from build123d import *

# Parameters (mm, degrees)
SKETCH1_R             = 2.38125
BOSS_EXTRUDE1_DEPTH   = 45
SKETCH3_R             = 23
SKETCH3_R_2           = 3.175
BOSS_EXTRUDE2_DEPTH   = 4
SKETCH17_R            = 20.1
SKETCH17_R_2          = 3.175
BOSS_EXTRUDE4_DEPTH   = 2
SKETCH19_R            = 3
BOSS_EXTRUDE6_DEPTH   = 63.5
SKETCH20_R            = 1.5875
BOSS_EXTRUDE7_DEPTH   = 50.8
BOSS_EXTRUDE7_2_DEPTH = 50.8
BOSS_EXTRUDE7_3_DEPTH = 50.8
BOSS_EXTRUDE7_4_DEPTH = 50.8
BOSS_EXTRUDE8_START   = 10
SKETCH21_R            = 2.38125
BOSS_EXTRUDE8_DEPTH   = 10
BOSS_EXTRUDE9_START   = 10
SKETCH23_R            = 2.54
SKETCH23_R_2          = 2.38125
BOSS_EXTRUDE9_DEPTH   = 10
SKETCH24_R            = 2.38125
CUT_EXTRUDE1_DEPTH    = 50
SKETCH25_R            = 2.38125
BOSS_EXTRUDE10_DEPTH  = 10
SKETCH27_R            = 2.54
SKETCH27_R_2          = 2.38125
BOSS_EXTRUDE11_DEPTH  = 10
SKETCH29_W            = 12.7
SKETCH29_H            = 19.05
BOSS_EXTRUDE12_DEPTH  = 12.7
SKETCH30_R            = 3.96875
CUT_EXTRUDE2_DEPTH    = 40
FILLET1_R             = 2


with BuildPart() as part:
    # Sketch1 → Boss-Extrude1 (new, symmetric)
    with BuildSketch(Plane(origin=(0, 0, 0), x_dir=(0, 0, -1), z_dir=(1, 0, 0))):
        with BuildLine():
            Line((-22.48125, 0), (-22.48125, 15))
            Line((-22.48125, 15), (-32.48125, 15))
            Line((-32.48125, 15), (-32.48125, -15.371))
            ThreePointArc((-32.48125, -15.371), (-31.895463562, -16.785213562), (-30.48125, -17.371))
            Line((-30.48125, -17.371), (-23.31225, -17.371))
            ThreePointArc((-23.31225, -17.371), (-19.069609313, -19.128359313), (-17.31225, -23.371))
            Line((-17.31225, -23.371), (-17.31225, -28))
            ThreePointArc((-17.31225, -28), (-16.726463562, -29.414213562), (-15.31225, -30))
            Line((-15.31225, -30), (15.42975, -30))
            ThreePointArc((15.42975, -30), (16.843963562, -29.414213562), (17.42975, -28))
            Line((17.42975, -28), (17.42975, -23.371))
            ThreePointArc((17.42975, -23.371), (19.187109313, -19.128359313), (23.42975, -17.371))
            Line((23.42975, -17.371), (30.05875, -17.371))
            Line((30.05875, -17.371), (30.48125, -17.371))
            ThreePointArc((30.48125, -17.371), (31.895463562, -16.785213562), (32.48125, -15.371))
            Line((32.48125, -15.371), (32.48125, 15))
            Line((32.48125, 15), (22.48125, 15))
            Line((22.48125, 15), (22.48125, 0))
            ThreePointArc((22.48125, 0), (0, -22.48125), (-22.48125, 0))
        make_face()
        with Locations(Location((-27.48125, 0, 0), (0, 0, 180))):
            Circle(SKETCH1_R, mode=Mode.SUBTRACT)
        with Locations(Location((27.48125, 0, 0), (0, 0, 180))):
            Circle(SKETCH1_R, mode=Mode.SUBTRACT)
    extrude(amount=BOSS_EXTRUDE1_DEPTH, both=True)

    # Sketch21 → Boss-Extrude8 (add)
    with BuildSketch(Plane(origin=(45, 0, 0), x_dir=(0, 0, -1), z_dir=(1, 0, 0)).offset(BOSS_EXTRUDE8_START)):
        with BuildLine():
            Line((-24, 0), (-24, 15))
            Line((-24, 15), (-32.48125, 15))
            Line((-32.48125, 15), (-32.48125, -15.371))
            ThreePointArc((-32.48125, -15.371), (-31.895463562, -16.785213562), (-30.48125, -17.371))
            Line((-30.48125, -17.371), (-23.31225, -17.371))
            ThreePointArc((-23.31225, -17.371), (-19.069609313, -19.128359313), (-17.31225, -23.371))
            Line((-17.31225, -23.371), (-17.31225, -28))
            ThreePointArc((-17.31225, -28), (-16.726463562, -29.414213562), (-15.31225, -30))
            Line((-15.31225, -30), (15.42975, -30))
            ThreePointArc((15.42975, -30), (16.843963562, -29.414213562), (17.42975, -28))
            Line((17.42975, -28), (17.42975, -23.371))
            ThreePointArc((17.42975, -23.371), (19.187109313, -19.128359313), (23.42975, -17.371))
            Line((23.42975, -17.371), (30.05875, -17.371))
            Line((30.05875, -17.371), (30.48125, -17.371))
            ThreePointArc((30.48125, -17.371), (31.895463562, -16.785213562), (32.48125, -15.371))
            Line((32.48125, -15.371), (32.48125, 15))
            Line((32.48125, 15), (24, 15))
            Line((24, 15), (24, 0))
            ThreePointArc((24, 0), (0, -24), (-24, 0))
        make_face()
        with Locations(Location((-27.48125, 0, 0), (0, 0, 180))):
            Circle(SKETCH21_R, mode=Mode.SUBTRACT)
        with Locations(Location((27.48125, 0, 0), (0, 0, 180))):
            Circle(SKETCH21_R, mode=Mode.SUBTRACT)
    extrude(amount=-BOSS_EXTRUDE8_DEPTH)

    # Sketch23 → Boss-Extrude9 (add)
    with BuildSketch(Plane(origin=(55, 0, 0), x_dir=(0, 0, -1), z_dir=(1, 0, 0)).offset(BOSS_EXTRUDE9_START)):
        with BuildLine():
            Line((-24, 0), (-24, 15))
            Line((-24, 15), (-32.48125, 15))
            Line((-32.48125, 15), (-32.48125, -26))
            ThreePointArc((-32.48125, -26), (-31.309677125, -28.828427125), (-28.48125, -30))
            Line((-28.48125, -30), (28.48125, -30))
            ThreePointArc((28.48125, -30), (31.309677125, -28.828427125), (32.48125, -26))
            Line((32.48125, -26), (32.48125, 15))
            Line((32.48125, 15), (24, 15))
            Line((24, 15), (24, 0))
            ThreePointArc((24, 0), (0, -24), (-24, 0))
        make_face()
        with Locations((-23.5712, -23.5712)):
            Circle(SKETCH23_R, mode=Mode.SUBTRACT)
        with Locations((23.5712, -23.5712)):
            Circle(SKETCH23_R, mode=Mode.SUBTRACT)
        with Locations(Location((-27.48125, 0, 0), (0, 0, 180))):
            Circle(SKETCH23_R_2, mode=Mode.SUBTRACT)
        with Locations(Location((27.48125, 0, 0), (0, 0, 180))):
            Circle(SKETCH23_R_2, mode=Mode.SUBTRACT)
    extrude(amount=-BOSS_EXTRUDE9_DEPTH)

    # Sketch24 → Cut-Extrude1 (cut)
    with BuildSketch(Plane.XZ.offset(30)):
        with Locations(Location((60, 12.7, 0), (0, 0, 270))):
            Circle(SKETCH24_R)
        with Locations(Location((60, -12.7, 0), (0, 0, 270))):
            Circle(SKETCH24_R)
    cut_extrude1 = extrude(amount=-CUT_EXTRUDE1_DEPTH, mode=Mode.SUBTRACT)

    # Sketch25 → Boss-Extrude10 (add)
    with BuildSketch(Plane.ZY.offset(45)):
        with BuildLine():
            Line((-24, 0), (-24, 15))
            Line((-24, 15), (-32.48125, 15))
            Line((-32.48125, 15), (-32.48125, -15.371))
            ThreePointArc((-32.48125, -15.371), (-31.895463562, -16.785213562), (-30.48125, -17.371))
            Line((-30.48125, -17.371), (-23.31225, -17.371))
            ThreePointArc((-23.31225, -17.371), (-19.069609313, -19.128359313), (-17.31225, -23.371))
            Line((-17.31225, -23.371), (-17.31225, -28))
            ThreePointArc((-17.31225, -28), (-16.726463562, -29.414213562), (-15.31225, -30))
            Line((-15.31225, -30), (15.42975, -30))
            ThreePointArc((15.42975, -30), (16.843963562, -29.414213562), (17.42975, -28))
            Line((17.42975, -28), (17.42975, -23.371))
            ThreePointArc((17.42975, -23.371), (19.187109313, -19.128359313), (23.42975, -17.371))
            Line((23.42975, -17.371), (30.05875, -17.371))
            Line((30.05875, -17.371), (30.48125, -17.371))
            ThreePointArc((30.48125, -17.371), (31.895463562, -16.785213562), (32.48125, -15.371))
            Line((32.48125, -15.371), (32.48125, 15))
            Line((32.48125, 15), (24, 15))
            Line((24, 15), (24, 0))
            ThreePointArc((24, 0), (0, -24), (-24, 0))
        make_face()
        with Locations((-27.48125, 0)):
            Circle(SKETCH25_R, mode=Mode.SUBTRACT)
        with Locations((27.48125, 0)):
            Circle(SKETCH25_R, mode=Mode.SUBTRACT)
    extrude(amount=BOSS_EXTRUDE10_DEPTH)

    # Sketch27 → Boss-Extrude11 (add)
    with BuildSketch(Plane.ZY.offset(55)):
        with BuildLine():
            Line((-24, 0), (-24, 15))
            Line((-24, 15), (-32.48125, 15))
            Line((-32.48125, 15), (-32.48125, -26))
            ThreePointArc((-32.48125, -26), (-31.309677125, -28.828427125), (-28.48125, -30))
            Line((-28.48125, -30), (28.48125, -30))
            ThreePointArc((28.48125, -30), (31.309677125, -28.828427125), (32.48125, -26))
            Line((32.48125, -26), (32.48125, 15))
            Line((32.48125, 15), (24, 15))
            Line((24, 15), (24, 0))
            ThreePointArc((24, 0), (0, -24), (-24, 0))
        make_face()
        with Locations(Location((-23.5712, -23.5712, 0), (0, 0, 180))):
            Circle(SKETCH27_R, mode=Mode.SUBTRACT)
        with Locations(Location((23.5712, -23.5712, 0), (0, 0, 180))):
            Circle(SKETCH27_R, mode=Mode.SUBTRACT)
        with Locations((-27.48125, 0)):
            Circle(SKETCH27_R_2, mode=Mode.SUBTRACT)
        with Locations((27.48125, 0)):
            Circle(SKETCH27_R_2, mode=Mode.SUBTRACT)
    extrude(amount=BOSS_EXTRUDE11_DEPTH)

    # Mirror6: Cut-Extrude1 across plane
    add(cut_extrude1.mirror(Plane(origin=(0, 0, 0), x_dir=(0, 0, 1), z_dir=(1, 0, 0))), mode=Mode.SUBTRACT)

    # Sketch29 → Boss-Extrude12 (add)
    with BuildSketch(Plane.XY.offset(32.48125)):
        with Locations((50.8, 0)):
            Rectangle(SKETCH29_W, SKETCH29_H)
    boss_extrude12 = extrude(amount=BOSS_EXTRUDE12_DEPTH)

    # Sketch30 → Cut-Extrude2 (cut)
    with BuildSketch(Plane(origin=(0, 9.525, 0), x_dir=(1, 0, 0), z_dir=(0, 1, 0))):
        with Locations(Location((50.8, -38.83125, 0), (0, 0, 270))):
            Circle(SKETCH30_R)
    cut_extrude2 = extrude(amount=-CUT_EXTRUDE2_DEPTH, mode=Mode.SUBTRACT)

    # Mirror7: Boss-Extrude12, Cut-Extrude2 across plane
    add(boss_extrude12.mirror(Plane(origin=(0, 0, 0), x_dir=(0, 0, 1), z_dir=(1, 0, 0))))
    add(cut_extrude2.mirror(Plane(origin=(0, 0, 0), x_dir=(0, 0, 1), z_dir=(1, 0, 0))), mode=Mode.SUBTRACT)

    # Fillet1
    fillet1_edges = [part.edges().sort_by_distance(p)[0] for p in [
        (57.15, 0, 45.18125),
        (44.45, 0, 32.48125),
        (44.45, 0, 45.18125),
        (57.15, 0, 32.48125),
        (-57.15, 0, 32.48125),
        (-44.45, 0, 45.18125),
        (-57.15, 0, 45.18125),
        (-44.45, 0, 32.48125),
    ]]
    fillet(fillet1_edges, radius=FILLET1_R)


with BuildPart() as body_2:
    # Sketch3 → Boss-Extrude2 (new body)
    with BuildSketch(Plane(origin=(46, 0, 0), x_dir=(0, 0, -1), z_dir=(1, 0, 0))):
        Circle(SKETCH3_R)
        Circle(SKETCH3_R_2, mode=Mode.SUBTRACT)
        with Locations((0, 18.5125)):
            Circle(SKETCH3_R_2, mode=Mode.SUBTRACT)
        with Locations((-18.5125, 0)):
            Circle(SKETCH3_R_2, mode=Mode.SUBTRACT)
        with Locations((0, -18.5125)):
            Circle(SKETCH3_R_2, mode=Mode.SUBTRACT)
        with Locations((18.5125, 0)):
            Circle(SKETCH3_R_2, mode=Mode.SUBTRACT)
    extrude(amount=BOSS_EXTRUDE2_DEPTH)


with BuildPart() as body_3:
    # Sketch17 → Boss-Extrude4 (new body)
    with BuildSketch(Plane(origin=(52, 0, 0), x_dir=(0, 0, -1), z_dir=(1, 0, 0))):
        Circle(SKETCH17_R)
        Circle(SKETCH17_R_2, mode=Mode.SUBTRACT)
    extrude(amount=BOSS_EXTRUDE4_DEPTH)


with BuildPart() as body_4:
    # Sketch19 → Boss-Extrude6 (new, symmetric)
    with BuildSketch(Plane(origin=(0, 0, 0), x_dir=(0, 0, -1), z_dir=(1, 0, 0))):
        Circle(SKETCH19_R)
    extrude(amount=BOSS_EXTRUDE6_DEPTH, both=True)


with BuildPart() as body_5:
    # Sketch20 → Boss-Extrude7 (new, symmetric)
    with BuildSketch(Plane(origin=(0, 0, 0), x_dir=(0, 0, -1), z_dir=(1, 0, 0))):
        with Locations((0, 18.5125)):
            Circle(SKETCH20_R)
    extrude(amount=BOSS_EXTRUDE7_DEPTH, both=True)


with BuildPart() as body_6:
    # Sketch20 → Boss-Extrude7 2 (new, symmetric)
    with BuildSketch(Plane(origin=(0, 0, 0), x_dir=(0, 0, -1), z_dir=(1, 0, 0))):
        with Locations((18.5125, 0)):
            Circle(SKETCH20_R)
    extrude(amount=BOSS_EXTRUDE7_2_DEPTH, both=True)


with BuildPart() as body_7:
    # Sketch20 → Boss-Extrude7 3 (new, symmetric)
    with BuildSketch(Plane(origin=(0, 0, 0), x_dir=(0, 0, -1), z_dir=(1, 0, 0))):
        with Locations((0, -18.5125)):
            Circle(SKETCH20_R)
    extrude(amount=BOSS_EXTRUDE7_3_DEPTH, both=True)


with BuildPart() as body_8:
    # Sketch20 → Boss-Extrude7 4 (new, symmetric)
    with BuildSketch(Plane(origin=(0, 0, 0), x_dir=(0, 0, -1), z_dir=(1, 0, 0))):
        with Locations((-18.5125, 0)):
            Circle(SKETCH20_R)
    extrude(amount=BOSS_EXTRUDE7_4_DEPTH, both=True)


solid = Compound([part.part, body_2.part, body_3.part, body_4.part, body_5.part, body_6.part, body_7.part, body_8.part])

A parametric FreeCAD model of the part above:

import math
import FreeCAD as App
import Part
import Sketcher


def edges_at(feature, points):
    """Names of the edges that pass closest to the given points."""
    edges = feature.Shape.Edges
    near = lambda p: min(range(len(edges)), key=lambda i: edges[i].distToShape(Part.Vertex(*p))[0])
    return sorted({f"Edge{near(p) + 1}" for p in points})


def add_polygon(sketch, points):
    """Adds a closed chain of lines whose ends are joined by coincident constraints."""
    first, n = sketch.GeometryCount, len(points)
    for a, b in zip(points, points[1:] + points[:1]):
        sketch.addGeometry(Part.LineSegment(App.Vector(*a, 0), App.Vector(*b, 0)), False)
    for i in range(n):
        sketch.addConstraint(Sketcher.Constraint("Coincident", first + i, 2, first + (i + 1) % n, 1))

doc = App.newDocument("Part")
body = doc.addObject("PartDesign::Body", "Body")

# Sketch on YZ plane
sketch1 = doc.addObject("Sketcher::SketchObject", "Sketch")
body.addObject(sketch1)
sketch1.AttachmentSupport = (doc.YZ_Plane, [""])
sketch1.MapMode = "FlatFace"
sketch1.addGeometry(Part.LineSegment(App.Vector(0, 22.48125, 0), App.Vector(15, 22.48125, 0)), False)
sketch1.addGeometry(Part.LineSegment(App.Vector(15, 22.48125, 0), App.Vector(15, 32.48125, 0)), False)
sketch1.addGeometry(Part.LineSegment(App.Vector(15, 32.48125, 0), App.Vector(-15.371, 32.48125, 0)), False)
sketch1.addGeometry(Part.ArcOfCircle(Part.Circle(App.Vector(-15.371, 30.48125, 0), App.Vector(0, 0, 1), 2), math.radians(90), math.radians(180)), False)
sketch1.addGeometry(Part.LineSegment(App.Vector(-17.371, 30.48125, 0), App.Vector(-17.371, 23.31225, 0)), False)
sketch1.addGeometry(Part.ArcOfCircle(Part.Circle(App.Vector(-23.371, 23.31225, 0), App.Vector(0, 0, 1), 6), math.radians(-90), math.radians(0)), False)
sketch1.addGeometry(Part.LineSegment(App.Vector(-23.371, 17.31225, 0), App.Vector(-28, 17.31225, 0)), False)
sketch1.addGeometry(Part.ArcOfCircle(Part.Circle(App.Vector(-28, 15.31225, 0), App.Vector(0, 0, 1), 2), math.radians(90), math.radians(180)), False)
sketch1.addGeometry(Part.LineSegment(App.Vector(-30, 15.31225, 0), App.Vector(-30, -15.42975, 0)), False)
sketch1.addGeometry(Part.ArcOfCircle(Part.Circle(App.Vector(-28, -15.42975, 0), App.Vector(0, 0, 1), 2), math.radians(-180), math.radians(-90)), False)
sketch1.addGeometry(Part.LineSegment(App.Vector(-28, -17.42975, 0), App.Vector(-23.371, -17.42975, 0)), False)
sketch1.addGeometry(Part.ArcOfCircle(Part.Circle(App.Vector(-23.371, -23.42975, 0), App.Vector(0, 0, 1), 6), math.radians(0), math.radians(90)), False)
sketch1.addGeometry(Part.LineSegment(App.Vector(-17.371, -23.42975, 0), App.Vector(-17.371, -30.48125, 0)), False)
sketch1.addGeometry(Part.ArcOfCircle(Part.Circle(App.Vector(-15.371, -30.48125, 0), App.Vector(0, 0, 1), 2), math.radians(-180), math.radians(-90)), False)
sketch1.addGeometry(Part.LineSegment(App.Vector(-15.371, -32.48125, 0), App.Vector(15, -32.48125, 0)), False)
sketch1.addGeometry(Part.LineSegment(App.Vector(15, -32.48125, 0), App.Vector(15, -22.48125, 0)), False)
sketch1.addGeometry(Part.LineSegment(App.Vector(15, -22.48125, 0), App.Vector(0, -22.48125, 0)), False)
sketch1.addGeometry(Part.ArcOfCircle(Part.Circle(App.Vector(0, 0, 0), App.Vector(0, 0, 1), 22.48125), math.radians(90), math.radians(270)), False)
sketch1.addGeometry(Part.Circle(App.Vector(0, 27.48125, 0), App.Vector(0, 0, 1), 2.38125), False)
sketch1.addGeometry(Part.Circle(App.Vector(0, -27.48125, 0), App.Vector(0, 0, 1), 2.38125), False)
sketch1.addConstraint(Sketcher.Constraint("Coincident", 0, 2, 1, 1))
sketch1.addConstraint(Sketcher.Constraint("Coincident", 1, 2, 2, 1))
sketch1.addConstraint(Sketcher.Constraint("Tangent", 2, 2, 3, 1))
sketch1.addConstraint(Sketcher.Constraint("Tangent", 3, 2, 4, 1))
sketch1.addConstraint(Sketcher.Constraint("Tangent", 4, 2, 5, 2))
sketch1.addConstraint(Sketcher.Constraint("Tangent", 5, 1, 6, 1))
sketch1.addConstraint(Sketcher.Constraint("Tangent", 6, 2, 7, 1))
sketch1.addConstraint(Sketcher.Constraint("Tangent", 7, 2, 8, 1))
sketch1.addConstraint(Sketcher.Constraint("Tangent", 8, 2, 9, 1))
sketch1.addConstraint(Sketcher.Constraint("Tangent", 9, 2, 10, 1))
sketch1.addConstraint(Sketcher.Constraint("Tangent", 10, 2, 11, 2))
sketch1.addConstraint(Sketcher.Constraint("Tangent", 11, 1, 12, 1))
sketch1.addConstraint(Sketcher.Constraint("Tangent", 12, 2, 13, 1))
sketch1.addConstraint(Sketcher.Constraint("Tangent", 13, 2, 14, 1))
sketch1.addConstraint(Sketcher.Constraint("Coincident", 14, 2, 15, 1))
sketch1.addConstraint(Sketcher.Constraint("Coincident", 15, 2, 16, 1))
sketch1.addConstraint(Sketcher.Constraint("Tangent", 16, 2, 17, 2))
sketch1.addConstraint(Sketcher.Constraint("Tangent", 17, 1, 0, 1))
sketch1.addConstraint(Sketcher.Constraint("Horizontal", 0))
sketch1.addConstraint(Sketcher.Constraint("Vertical", 1))
sketch1.addConstraint(Sketcher.Constraint("Horizontal", 2))
sketch1.addConstraint(Sketcher.Constraint("Vertical", 4))
sketch1.addConstraint(Sketcher.Constraint("Horizontal", 6))
sketch1.addConstraint(Sketcher.Constraint("Vertical", 8))
sketch1.addConstraint(Sketcher.Constraint("Horizontal", 10))
sketch1.addConstraint(Sketcher.Constraint("Vertical", 12))
sketch1.addConstraint(Sketcher.Constraint("Horizontal", 14))
sketch1.addConstraint(Sketcher.Constraint("Vertical", 15))
sketch1.addConstraint(Sketcher.Constraint("Horizontal", 16))
sketch1.addConstraint(Sketcher.Constraint("Coincident", 17, 3, -1, 1))
sketch1.addConstraint(Sketcher.Constraint("Equal", 3, 7))
sketch1.addConstraint(Sketcher.Constraint("Equal", 7, 9))
sketch1.addConstraint(Sketcher.Constraint("Equal", 5, 11))
sketch1.addConstraint(Sketcher.Constraint("Equal", 9, 13))
sketch1.addConstraint(Sketcher.Constraint("Equal", 18, 19))
sketch1.addConstraint(Sketcher.Constraint("Symmetric", 18, 3, 19, 3, -1, 1))
sketch1.addConstraint(Sketcher.Constraint("Symmetric", 3, 3, 13, 3, -1))
sketch1.addConstraint(Sketcher.Constraint("PointOnObject", 18, 3, -2))
sketch1.addConstraint(Sketcher.Constraint("Vertical", 1, 2, 14, 2))
sketch1.addConstraint(Sketcher.Constraint("Radius", 3, 2.0))
sketch1.addConstraint(Sketcher.Constraint("Radius", 5, 6.0))
sketch1.addConstraint(Sketcher.Constraint("DistanceX", 0, 1, 0, 2, 15.0))
sketch1.addConstraint(Sketcher.Constraint("DistanceY", 1, 1, 1, 2, 10.0))
sketch1.addConstraint(Sketcher.Constraint("DistanceX", 7, 3, -1, 1, 28.0))
sketch1.addConstraint(Sketcher.Constraint("DistanceY", 18, 3, 3, 3, 3.0))
sketch1.addConstraint(Sketcher.Constraint("Diameter", 18, 4.7625))
sketch1.addConstraint(Sketcher.Constraint("DistanceX", 2, 2, 2, 1, 30.371))
sketch1.addConstraint(Sketcher.Constraint("DistanceY", 4, 2, 4, 1, 7.169))
sketch1.addConstraint(Sketcher.Constraint("DistanceY", 8, 2, 8, 1, 30.742))
sketch1.addConstraint(Sketcher.Constraint("Radius", 17, 22.48125))
pad1 = doc.addObject("PartDesign::Pad", "Pad")
body.addObject(pad1)
pad1.Profile = sketch1
pad1.Length = 90
pad1.Midplane = True

# Sketch on YZ plane
sketch2 = doc.addObject("Sketcher::SketchObject", "Sketch001")
body.addObject(sketch2)
sketch2.AttachmentSupport = (doc.YZ_Plane, [""])
sketch2.MapMode = "FlatFace"
sketch2.AttachmentOffset = App.Placement(App.Vector(0, 0, 55), App.Rotation())
sketch2.addGeometry(Part.LineSegment(App.Vector(0, 24, 0), App.Vector(15, 24, 0)), False)
sketch2.addGeometry(Part.LineSegment(App.Vector(15, 24, 0), App.Vector(15, 32.48125, 0)), False)
sketch2.addGeometry(Part.LineSegment(App.Vector(15, 32.48125, 0), App.Vector(-15.371, 32.48125, 0)), False)
sketch2.addGeometry(Part.ArcOfCircle(Part.Circle(App.Vector(-15.371, 30.48125, 0), App.Vector(0, 0, 1), 2), math.radians(90), math.radians(180)), False)
sketch2.addGeometry(Part.LineSegment(App.Vector(-17.371, 30.48125, 0), App.Vector(-17.371, 23.31225, 0)), False)
sketch2.addGeometry(Part.ArcOfCircle(Part.Circle(App.Vector(-23.371, 23.31225, 0), App.Vector(0, 0, 1), 6), math.radians(-90), math.radians(0)), False)
sketch2.addGeometry(Part.LineSegment(App.Vector(-23.371, 17.31225, 0), App.Vector(-28, 17.31225, 0)), False)
sketch2.addGeometry(Part.ArcOfCircle(Part.Circle(App.Vector(-28, 15.31225, 0), App.Vector(0, 0, 1), 2), math.radians(90), math.radians(180)), False)
sketch2.addGeometry(Part.LineSegment(App.Vector(-30, 15.31225, 0), App.Vector(-30, -15.42975, 0)), False)
sketch2.addGeometry(Part.ArcOfCircle(Part.Circle(App.Vector(-28, -15.42975, 0), App.Vector(0, 0, 1), 2), math.radians(-180), math.radians(-90)), False)
sketch2.addGeometry(Part.LineSegment(App.Vector(-28, -17.42975, 0), App.Vector(-23.371, -17.42975, 0)), False)
sketch2.addGeometry(Part.ArcOfCircle(Part.Circle(App.Vector(-23.371, -23.42975, 0), App.Vector(0, 0, 1), 6), math.radians(0), math.radians(90)), False)
sketch2.addGeometry(Part.LineSegment(App.Vector(-17.371, -23.42975, 0), App.Vector(-17.371, -30.48125, 0)), False)
sketch2.addGeometry(Part.ArcOfCircle(Part.Circle(App.Vector(-15.371, -30.48125, 0), App.Vector(0, 0, 1), 2), math.radians(-180), math.radians(-90)), False)
sketch2.addGeometry(Part.LineSegment(App.Vector(-15.371, -32.48125, 0), App.Vector(15, -32.48125, 0)), False)
sketch2.addGeometry(Part.LineSegment(App.Vector(15, -32.48125, 0), App.Vector(15, -24, 0)), False)
sketch2.addGeometry(Part.LineSegment(App.Vector(15, -24, 0), App.Vector(0, -24, 0)), False)
sketch2.addGeometry(Part.ArcOfCircle(Part.Circle(App.Vector(0, 0, 0), App.Vector(0, 0, 1), 24), math.radians(90), math.radians(270)), False)
sketch2.addGeometry(Part.Circle(App.Vector(0, 27.48125, 0), App.Vector(0, 0, 1), 2.38125), False)
sketch2.addGeometry(Part.Circle(App.Vector(0, -27.48125, 0), App.Vector(0, 0, 1), 2.38125), False)
sketch2.addConstraint(Sketcher.Constraint("Coincident", 0, 2, 1, 1))
sketch2.addConstraint(Sketcher.Constraint("Coincident", 1, 2, 2, 1))
sketch2.addConstraint(Sketcher.Constraint("Tangent", 2, 2, 3, 1))
sketch2.addConstraint(Sketcher.Constraint("Tangent", 3, 2, 4, 1))
sketch2.addConstraint(Sketcher.Constraint("Tangent", 4, 2, 5, 2))
sketch2.addConstraint(Sketcher.Constraint("Tangent", 5, 1, 6, 1))
sketch2.addConstraint(Sketcher.Constraint("Tangent", 6, 2, 7, 1))
sketch2.addConstraint(Sketcher.Constraint("Tangent", 7, 2, 8, 1))
sketch2.addConstraint(Sketcher.Constraint("Tangent", 8, 2, 9, 1))
sketch2.addConstraint(Sketcher.Constraint("Tangent", 9, 2, 10, 1))
sketch2.addConstraint(Sketcher.Constraint("Tangent", 10, 2, 11, 2))
sketch2.addConstraint(Sketcher.Constraint("Tangent", 11, 1, 12, 1))
sketch2.addConstraint(Sketcher.Constraint("Tangent", 12, 2, 13, 1))
sketch2.addConstraint(Sketcher.Constraint("Tangent", 13, 2, 14, 1))
sketch2.addConstraint(Sketcher.Constraint("Coincident", 14, 2, 15, 1))
sketch2.addConstraint(Sketcher.Constraint("Coincident", 15, 2, 16, 1))
sketch2.addConstraint(Sketcher.Constraint("Tangent", 16, 2, 17, 2))
sketch2.addConstraint(Sketcher.Constraint("Tangent", 17, 1, 0, 1))
sketch2.addConstraint(Sketcher.Constraint("Horizontal", 0))
sketch2.addConstraint(Sketcher.Constraint("Vertical", 1))
sketch2.addConstraint(Sketcher.Constraint("Horizontal", 2))
sketch2.addConstraint(Sketcher.Constraint("Vertical", 4))
sketch2.addConstraint(Sketcher.Constraint("Horizontal", 6))
sketch2.addConstraint(Sketcher.Constraint("Vertical", 8))
sketch2.addConstraint(Sketcher.Constraint("Horizontal", 10))
sketch2.addConstraint(Sketcher.Constraint("Vertical", 12))
sketch2.addConstraint(Sketcher.Constraint("Horizontal", 14))
sketch2.addConstraint(Sketcher.Constraint("Vertical", 15))
sketch2.addConstraint(Sketcher.Constraint("Horizontal", 16))
sketch2.addConstraint(Sketcher.Constraint("Coincident", 17, 3, -1, 1))
sketch2.addConstraint(Sketcher.Constraint("Equal", 3, 7))
sketch2.addConstraint(Sketcher.Constraint("Equal", 7, 9))
sketch2.addConstraint(Sketcher.Constraint("Equal", 5, 11))
sketch2.addConstraint(Sketcher.Constraint("Equal", 9, 13))
sketch2.addConstraint(Sketcher.Constraint("Equal", 18, 19))
sketch2.addConstraint(Sketcher.Constraint("Symmetric", 18, 3, 19, 3, -1, 1))
sketch2.addConstraint(Sketcher.Constraint("Symmetric", 3, 3, 13, 3, -1))
sketch2.addConstraint(Sketcher.Constraint("PointOnObject", 18, 3, -2))
sketch2.addConstraint(Sketcher.Constraint("Vertical", 1, 2, 14, 2))
sketch2.addConstraint(Sketcher.Constraint("Radius", 3, 2.0))
sketch2.addConstraint(Sketcher.Constraint("Radius", 5, 6.0))
sketch2.addConstraint(Sketcher.Constraint("Radius", 17, 24.0))
sketch2.addConstraint(Sketcher.Constraint("DistanceX", 0, 1, 0, 2, 15.0))
sketch2.addConstraint(Sketcher.Constraint("DistanceX", 7, 3, -1, 1, 28.0))
sketch2.addConstraint(Sketcher.Constraint("DistanceY", 18, 3, 3, 3, 3.0))
sketch2.addConstraint(Sketcher.Constraint("Diameter", 18, 4.7625))
sketch2.addConstraint(Sketcher.Constraint("DistanceX", 2, 2, 2, 1, 30.371))
sketch2.addConstraint(Sketcher.Constraint("DistanceY", 4, 2, 4, 1, 7.169))
sketch2.addConstraint(Sketcher.Constraint("DistanceY", 8, 2, 8, 1, 30.742))
sketch2.addConstraint(Sketcher.Constraint("DistanceY", 12, 2, 12, 1, 7.0515))
pad2 = doc.addObject("PartDesign::Pad", "Pad001")
body.addObject(pad2)
pad2.Profile = sketch2
pad2.Length = 10
pad2.Reversed = True

# Sketch on YZ plane
sketch3 = doc.addObject("Sketcher::SketchObject", "Sketch002")
body.addObject(sketch3)
sketch3.AttachmentSupport = (doc.YZ_Plane, [""])
sketch3.MapMode = "FlatFace"
sketch3.AttachmentOffset = App.Placement(App.Vector(0, 0, 65), App.Rotation())
sketch3.addGeometry(Part.LineSegment(App.Vector(0, 24, 0), App.Vector(15, 24, 0)), False)
sketch3.addGeometry(Part.LineSegment(App.Vector(15, 24, 0), App.Vector(15, 32.48125, 0)), False)
sketch3.addGeometry(Part.LineSegment(App.Vector(15, 32.48125, 0), App.Vector(-26, 32.48125, 0)), False)
sketch3.addGeometry(Part.ArcOfCircle(Part.Circle(App.Vector(-26, 28.48125, 0), App.Vector(0, 0, 1), 4), math.radians(90), math.radians(180)), False)
sketch3.addGeometry(Part.LineSegment(App.Vector(-30, 28.48125, 0), App.Vector(-30, -28.48125, 0)), False)
sketch3.addGeometry(Part.ArcOfCircle(Part.Circle(App.Vector(-26, -28.48125, 0), App.Vector(0, 0, 1), 4), math.radians(180), math.radians(270)), False)
sketch3.addGeometry(Part.LineSegment(App.Vector(-26, -32.48125, 0), App.Vector(15, -32.48125, 0)), False)
sketch3.addGeometry(Part.LineSegment(App.Vector(15, -32.48125, 0), App.Vector(15, -24, 0)), False)
sketch3.addGeometry(Part.LineSegment(App.Vector(15, -24, 0), App.Vector(0, -24, 0)), False)
sketch3.addGeometry(Part.ArcOfCircle(Part.Circle(App.Vector(0, 0, 0), App.Vector(0, 0, 1), 24), math.radians(90), math.radians(270)), False)
sketch3.addGeometry(Part.Circle(App.Vector(-23.5712, 23.5712, 0), App.Vector(0, 0, 1), 2.54), False)
sketch3.addGeometry(Part.Circle(App.Vector(-23.5712, -23.5712, 0), App.Vector(0, 0, 1), 2.54), False)
sketch3.addGeometry(Part.Circle(App.Vector(0, 27.48125, 0), App.Vector(0, 0, 1), 2.38125), False)
sketch3.addGeometry(Part.Circle(App.Vector(0, -27.48125, 0), App.Vector(0, 0, 1), 2.38125), False)
sketch3.addConstraint(Sketcher.Constraint("Coincident", 0, 2, 1, 1))
sketch3.addConstraint(Sketcher.Constraint("Coincident", 1, 2, 2, 1))
sketch3.addConstraint(Sketcher.Constraint("Tangent", 2, 2, 3, 1))
sketch3.addConstraint(Sketcher.Constraint("Tangent", 3, 2, 4, 1))
sketch3.addConstraint(Sketcher.Constraint("Tangent", 4, 2, 5, 1))
sketch3.addConstraint(Sketcher.Constraint("Tangent", 5, 2, 6, 1))
sketch3.addConstraint(Sketcher.Constraint("Coincident", 6, 2, 7, 1))
sketch3.addConstraint(Sketcher.Constraint("Coincident", 7, 2, 8, 1))
sketch3.addConstraint(Sketcher.Constraint("Tangent", 8, 2, 9, 2))
sketch3.addConstraint(Sketcher.Constraint("Tangent", 9, 1, 0, 1))
sketch3.addConstraint(Sketcher.Constraint("Horizontal", 0))
sketch3.addConstraint(Sketcher.Constraint("Vertical", 1))
sketch3.addConstraint(Sketcher.Constraint("Horizontal", 2))
sketch3.addConstraint(Sketcher.Constraint("Vertical", 4))
sketch3.addConstraint(Sketcher.Constraint("Horizontal", 6))
sketch3.addConstraint(Sketcher.Constraint("Vertical", 7))
sketch3.addConstraint(Sketcher.Constraint("Horizontal", 8))
sketch3.addConstraint(Sketcher.Constraint("Coincident", 9, 3, -1, 1))
sketch3.addConstraint(Sketcher.Constraint("Equal", 3, 5))
sketch3.addConstraint(Sketcher.Constraint("Equal", 10, 11))
sketch3.addConstraint(Sketcher.Constraint("Equal", 12, 13))
sketch3.addConstraint(Sketcher.Constraint("Symmetric", 12, 3, 13, 3, -1, 1))
sketch3.addConstraint(Sketcher.Constraint("Symmetric", 10, 3, 11, 3, -1))
sketch3.addConstraint(Sketcher.Constraint("Symmetric", 1, 2, 6, 2, -1))
sketch3.addConstraint(Sketcher.Constraint("PointOnObject", 12, 3, -2))
sketch3.addConstraint(Sketcher.Constraint("Radius", 3, 4.0))
sketch3.addConstraint(Sketcher.Constraint("Radius", 9, 24.0))
sketch3.addConstraint(Sketcher.Constraint("Diameter", 10, 5.08))
sketch3.addConstraint(Sketcher.Constraint("DistanceX", 0, 1, 0, 2, 15.0))
sketch3.addConstraint(Sketcher.Constraint("DistanceX", 2, 2, 2, 1, 41.0))
sketch3.addConstraint(Sketcher.Constraint("DistanceY", 12, 3, 3, 3, 1.0))
sketch3.addConstraint(Sketcher.Constraint("Diameter", 12, 4.7625))
sketch3.addConstraint(Sketcher.Constraint("DistanceY", 4, 2, 4, 1, 56.9625))
sketch3.addConstraint(Sketcher.Constraint("DistanceX", 10, 3, -1, 1, 23.5712))
sketch3.addConstraint(Sketcher.Constraint("DistanceY", -1, 1, 10, 3, 23.5712))
pad3 = doc.addObject("PartDesign::Pad", "Pad002")
body.addObject(pad3)
pad3.Profile = sketch3
pad3.Length = 10
pad3.Reversed = True

# Sketch on XZ plane
sketch4 = doc.addObject("Sketcher::SketchObject", "Sketch003")
body.addObject(sketch4)
sketch4.AttachmentSupport = (doc.XZ_Plane, [""])
sketch4.MapMode = "FlatFace"
sketch4.AttachmentOffset = App.Placement(App.Vector(0, 0, 30), App.Rotation())
sketch4.addGeometry(Part.Circle(App.Vector(60, 12.7, 0), App.Vector(0, 0, 1), 2.38125), False)
sketch4.addGeometry(Part.Circle(App.Vector(60, -12.7, 0), App.Vector(0, 0, 1), 2.38125), False)
sketch4.addConstraint(Sketcher.Constraint("Equal", 0, 1))
sketch4.addConstraint(Sketcher.Constraint("Symmetric", 0, 3, 1, 3, -1))
sketch4.addConstraint(Sketcher.Constraint("DistanceX", -1, 1, 0, 3, 60.0))
sketch4.addConstraint(Sketcher.Constraint("Diameter", 0, 4.7625))
sketch4.addConstraint(Sketcher.Constraint("DistanceY", -1, 1, 0, 3, 12.7))
pocket1 = doc.addObject("PartDesign::Pocket", "Pocket")
body.addObject(pocket1)
pocket1.Profile = sketch4
pocket1.Length = 50

# Sketch on YZ plane
sketch5 = doc.addObject("Sketcher::SketchObject", "Sketch004")
body.addObject(sketch5)
sketch5.AttachmentSupport = (doc.YZ_Plane, [""])
sketch5.MapMode = "FlatFace"
sketch5.AttachmentOffset = App.Placement(App.Vector(0, 0, -45), App.Rotation())
sketch5.addGeometry(Part.LineSegment(App.Vector(0, -24, 0), App.Vector(15, -24, 0)), False)
sketch5.addGeometry(Part.LineSegment(App.Vector(15, -24, 0), App.Vector(15, -32.48125, 0)), False)
sketch5.addGeometry(Part.LineSegment(App.Vector(15, -32.48125, 0), App.Vector(-15.371, -32.48125, 0)), False)
sketch5.addGeometry(Part.ArcOfCircle(Part.Circle(App.Vector(-15.371, -30.48125, 0), App.Vector(0, 0, 1), 2), math.radians(-180), math.radians(-90)), False)
sketch5.addGeometry(Part.LineSegment(App.Vector(-17.371, -30.48125, 0), App.Vector(-17.371, -23.31225, 0)), False)
sketch5.addGeometry(Part.ArcOfCircle(Part.Circle(App.Vector(-23.371, -23.31225, 0), App.Vector(0, 0, 1), 6), math.radians(0), math.radians(90)), False)
sketch5.addGeometry(Part.LineSegment(App.Vector(-23.371, -17.31225, 0), App.Vector(-28, -17.31225, 0)), False)
sketch5.addGeometry(Part.ArcOfCircle(Part.Circle(App.Vector(-28, -15.31225, 0), App.Vector(0, 0, 1), 2), math.radians(-180), math.radians(-90)), False)
sketch5.addGeometry(Part.LineSegment(App.Vector(-30, -15.31225, 0), App.Vector(-30, 15.42975, 0)), False)
sketch5.addGeometry(Part.ArcOfCircle(Part.Circle(App.Vector(-28, 15.42975, 0), App.Vector(0, 0, 1), 2), math.radians(90), math.radians(180)), False)
sketch5.addGeometry(Part.LineSegment(App.Vector(-28, 17.42975, 0), App.Vector(-23.371, 17.42975, 0)), False)
sketch5.addGeometry(Part.ArcOfCircle(Part.Circle(App.Vector(-23.371, 23.42975, 0), App.Vector(0, 0, 1), 6), math.radians(-90), math.radians(0)), False)
sketch5.addGeometry(Part.LineSegment(App.Vector(-17.371, 23.42975, 0), App.Vector(-17.371, 30.48125, 0)), False)
sketch5.addGeometry(Part.ArcOfCircle(Part.Circle(App.Vector(-15.371, 30.48125, 0), App.Vector(0, 0, 1), 2), math.radians(90), math.radians(180)), False)
sketch5.addGeometry(Part.LineSegment(App.Vector(-15.371, 32.48125, 0), App.Vector(15, 32.48125, 0)), False)
sketch5.addGeometry(Part.LineSegment(App.Vector(15, 32.48125, 0), App.Vector(15, 24, 0)), False)
sketch5.addGeometry(Part.LineSegment(App.Vector(15, 24, 0), App.Vector(0, 24, 0)), False)
sketch5.addGeometry(Part.ArcOfCircle(Part.Circle(App.Vector(0, 0, 0), App.Vector(0, 0, 1), 24), math.radians(90), math.radians(270)), False)
sketch5.addGeometry(Part.Circle(App.Vector(0, -27.48125, 0), App.Vector(0, 0, 1), 2.38125), False)
sketch5.addGeometry(Part.Circle(App.Vector(0, 27.48125, 0), App.Vector(0, 0, 1), 2.38125), False)
sketch5.addConstraint(Sketcher.Constraint("Coincident", 0, 2, 1, 1))
sketch5.addConstraint(Sketcher.Constraint("Coincident", 1, 2, 2, 1))
sketch5.addConstraint(Sketcher.Constraint("Tangent", 2, 2, 3, 2))
sketch5.addConstraint(Sketcher.Constraint("Tangent", 3, 1, 4, 1))
sketch5.addConstraint(Sketcher.Constraint("Tangent", 4, 2, 5, 1))
sketch5.addConstraint(Sketcher.Constraint("Tangent", 5, 2, 6, 1))
sketch5.addConstraint(Sketcher.Constraint("Tangent", 6, 2, 7, 2))
sketch5.addConstraint(Sketcher.Constraint("Tangent", 7, 1, 8, 1))
sketch5.addConstraint(Sketcher.Constraint("Tangent", 8, 2, 9, 2))
sketch5.addConstraint(Sketcher.Constraint("Tangent", 9, 1, 10, 1))
sketch5.addConstraint(Sketcher.Constraint("Tangent", 10, 2, 11, 1))
sketch5.addConstraint(Sketcher.Constraint("Tangent", 11, 2, 12, 1))
sketch5.addConstraint(Sketcher.Constraint("Tangent", 12, 2, 13, 2))
sketch5.addConstraint(Sketcher.Constraint("Tangent", 13, 1, 14, 1))
sketch5.addConstraint(Sketcher.Constraint("Coincident", 14, 2, 15, 1))
sketch5.addConstraint(Sketcher.Constraint("Coincident", 15, 2, 16, 1))
sketch5.addConstraint(Sketcher.Constraint("Tangent", 16, 2, 17, 1))
sketch5.addConstraint(Sketcher.Constraint("Tangent", 17, 2, 0, 1))
sketch5.addConstraint(Sketcher.Constraint("Horizontal", 0))
sketch5.addConstraint(Sketcher.Constraint("Vertical", 1))
sketch5.addConstraint(Sketcher.Constraint("Horizontal", 2))
sketch5.addConstraint(Sketcher.Constraint("Vertical", 4))
sketch5.addConstraint(Sketcher.Constraint("Horizontal", 6))
sketch5.addConstraint(Sketcher.Constraint("Vertical", 8))
sketch5.addConstraint(Sketcher.Constraint("Horizontal", 10))
sketch5.addConstraint(Sketcher.Constraint("Vertical", 12))
sketch5.addConstraint(Sketcher.Constraint("Horizontal", 14))
sketch5.addConstraint(Sketcher.Constraint("Vertical", 15))
sketch5.addConstraint(Sketcher.Constraint("Horizontal", 16))
sketch5.addConstraint(Sketcher.Constraint("Coincident", 17, 3, -1, 1))
sketch5.addConstraint(Sketcher.Constraint("Equal", 3, 7))
sketch5.addConstraint(Sketcher.Constraint("Equal", 7, 9))
sketch5.addConstraint(Sketcher.Constraint("Equal", 5, 11))
sketch5.addConstraint(Sketcher.Constraint("Equal", 9, 13))
sketch5.addConstraint(Sketcher.Constraint("Equal", 18, 19))
sketch5.addConstraint(Sketcher.Constraint("Symmetric", 18, 3, 19, 3, -1, 1))
sketch5.addConstraint(Sketcher.Constraint("Symmetric", 3, 3, 13, 3, -1))
sketch5.addConstraint(Sketcher.Constraint("PointOnObject", 18, 3, -2))
sketch5.addConstraint(Sketcher.Constraint("Vertical", 1, 2, 14, 2))
sketch5.addConstraint(Sketcher.Constraint("Radius", 3, 2.0))
sketch5.addConstraint(Sketcher.Constraint("Radius", 5, 6.0))
sketch5.addConstraint(Sketcher.Constraint("Radius", 17, 24.0))
sketch5.addConstraint(Sketcher.Constraint("DistanceX", 0, 1, 0, 2, 15.0))
sketch5.addConstraint(Sketcher.Constraint("DistanceX", 7, 3, -1, 1, 28.0))
sketch5.addConstraint(Sketcher.Constraint("DistanceY", 3, 3, 18, 3, 3.0))
sketch5.addConstraint(Sketcher.Constraint("Diameter", 18, 4.7625))
sketch5.addConstraint(Sketcher.Constraint("DistanceX", 2, 2, 2, 1, 30.371))
sketch5.addConstraint(Sketcher.Constraint("DistanceY", 4, 1, 4, 2, 7.169))
sketch5.addConstraint(Sketcher.Constraint("DistanceY", 8, 1, 8, 2, 30.742))
sketch5.addConstraint(Sketcher.Constraint("DistanceY", 12, 1, 12, 2, 7.0515))
pad4 = doc.addObject("PartDesign::Pad", "Pad003")
body.addObject(pad4)
pad4.Profile = sketch5
pad4.Length = 10
pad4.Reversed = True

# Sketch on YZ plane
sketch6 = doc.addObject("Sketcher::SketchObject", "Sketch005")
body.addObject(sketch6)
sketch6.AttachmentSupport = (doc.YZ_Plane, [""])
sketch6.MapMode = "FlatFace"
sketch6.AttachmentOffset = App.Placement(App.Vector(0, 0, -55), App.Rotation())
sketch6.addGeometry(Part.LineSegment(App.Vector(0, -24, 0), App.Vector(15, -24, 0)), False)
sketch6.addGeometry(Part.LineSegment(App.Vector(15, -24, 0), App.Vector(15, -32.48125, 0)), False)
sketch6.addGeometry(Part.LineSegment(App.Vector(15, -32.48125, 0), App.Vector(-26, -32.48125, 0)), False)
sketch6.addGeometry(Part.ArcOfCircle(Part.Circle(App.Vector(-26, -28.48125, 0), App.Vector(0, 0, 1), 4), math.radians(180), math.radians(270)), False)
sketch6.addGeometry(Part.LineSegment(App.Vector(-30, -28.48125, 0), App.Vector(-30, 28.48125, 0)), False)
sketch6.addGeometry(Part.ArcOfCircle(Part.Circle(App.Vector(-26, 28.48125, 0), App.Vector(0, 0, 1), 4), math.radians(90), math.radians(180)), False)
sketch6.addGeometry(Part.LineSegment(App.Vector(-26, 32.48125, 0), App.Vector(15, 32.48125, 0)), False)
sketch6.addGeometry(Part.LineSegment(App.Vector(15, 32.48125, 0), App.Vector(15, 24, 0)), False)
sketch6.addGeometry(Part.LineSegment(App.Vector(15, 24, 0), App.Vector(0, 24, 0)), False)
sketch6.addGeometry(Part.ArcOfCircle(Part.Circle(App.Vector(0, 0, 0), App.Vector(0, 0, 1), 24), math.radians(90), math.radians(270)), False)
sketch6.addGeometry(Part.Circle(App.Vector(-23.5712, -23.5712, 0), App.Vector(0, 0, 1), 2.54), False)
sketch6.addGeometry(Part.Circle(App.Vector(-23.5712, 23.5712, 0), App.Vector(0, 0, 1), 2.54), False)
sketch6.addGeometry(Part.Circle(App.Vector(0, -27.48125, 0), App.Vector(0, 0, 1), 2.38125), False)
sketch6.addGeometry(Part.Circle(App.Vector(0, 27.48125, 0), App.Vector(0, 0, 1), 2.38125), False)
sketch6.addConstraint(Sketcher.Constraint("Coincident", 0, 2, 1, 1))
sketch6.addConstraint(Sketcher.Constraint("Coincident", 1, 2, 2, 1))
sketch6.addConstraint(Sketcher.Constraint("Tangent", 2, 2, 3, 2))
sketch6.addConstraint(Sketcher.Constraint("Tangent", 3, 1, 4, 1))
sketch6.addConstraint(Sketcher.Constraint("Tangent", 4, 2, 5, 2))
sketch6.addConstraint(Sketcher.Constraint("Tangent", 5, 1, 6, 1))
sketch6.addConstraint(Sketcher.Constraint("Coincident", 6, 2, 7, 1))
sketch6.addConstraint(Sketcher.Constraint("Coincident", 7, 2, 8, 1))
sketch6.addConstraint(Sketcher.Constraint("Tangent", 8, 2, 9, 1))
sketch6.addConstraint(Sketcher.Constraint("Tangent", 9, 2, 0, 1))
sketch6.addConstraint(Sketcher.Constraint("Horizontal", 0))
sketch6.addConstraint(Sketcher.Constraint("Vertical", 1))
sketch6.addConstraint(Sketcher.Constraint("Horizontal", 2))
sketch6.addConstraint(Sketcher.Constraint("Vertical", 4))
sketch6.addConstraint(Sketcher.Constraint("Horizontal", 6))
sketch6.addConstraint(Sketcher.Constraint("Vertical", 7))
sketch6.addConstraint(Sketcher.Constraint("Horizontal", 8))
sketch6.addConstraint(Sketcher.Constraint("Coincident", 9, 3, -1, 1))
sketch6.addConstraint(Sketcher.Constraint("Equal", 3, 5))
sketch6.addConstraint(Sketcher.Constraint("Equal", 10, 11))
sketch6.addConstraint(Sketcher.Constraint("Equal", 12, 13))
sketch6.addConstraint(Sketcher.Constraint("Symmetric", 12, 3, 13, 3, -1, 1))
sketch6.addConstraint(Sketcher.Constraint("Symmetric", 10, 3, 11, 3, -1))
sketch6.addConstraint(Sketcher.Constraint("Symmetric", 1, 2, 6, 2, -1))
sketch6.addConstraint(Sketcher.Constraint("PointOnObject", 12, 3, -2))
sketch6.addConstraint(Sketcher.Constraint("Radius", 3, 4.0))
sketch6.addConstraint(Sketcher.Constraint("Radius", 9, 24.0))
sketch6.addConstraint(Sketcher.Constraint("Diameter", 10, 5.08))
sketch6.addConstraint(Sketcher.Constraint("DistanceX", 0, 1, 0, 2, 15.0))
sketch6.addConstraint(Sketcher.Constraint("DistanceX", 2, 2, 2, 1, 41.0))
sketch6.addConstraint(Sketcher.Constraint("DistanceY", 3, 3, 12, 3, 1.0))
sketch6.addConstraint(Sketcher.Constraint("Diameter", 12, 4.7625))
sketch6.addConstraint(Sketcher.Constraint("DistanceY", 4, 1, 4, 2, 56.9625))
sketch6.addConstraint(Sketcher.Constraint("DistanceX", 10, 3, -1, 1, 23.5712))
sketch6.addConstraint(Sketcher.Constraint("DistanceY", 10, 3, -1, 1, 23.5712))
pad5 = doc.addObject("PartDesign::Pad", "Pad004")
body.addObject(pad5)
pad5.Profile = sketch6
pad5.Length = 10
pad5.Reversed = True
doc.recompute()

mirrored = doc.addObject("PartDesign::Mirrored", "Mirrored")
body.addObject(mirrored)
mirrored.Originals = [pocket1]
mirrored.MirrorPlane = (doc.YZ_Plane, [""])
body.Tip = mirrored

# Sketch on XY plane
sketch7 = doc.addObject("Sketcher::SketchObject", "Sketch006")
body.addObject(sketch7)
sketch7.AttachmentSupport = (doc.XY_Plane, [""])
sketch7.MapMode = "FlatFace"
sketch7.AttachmentOffset = App.Placement(App.Vector(0, 0, 32.48125), App.Rotation())
add_polygon(sketch7, [(44.45, 9.525), (44.45, -9.525), (57.15, -9.525), (57.15, 9.525)])  # lines 0-3
sketch7.addConstraint(Sketcher.Constraint("Vertical", 0))
sketch7.addConstraint(Sketcher.Constraint("Horizontal", 1))
sketch7.addConstraint(Sketcher.Constraint("Vertical", 2))
sketch7.addConstraint(Sketcher.Constraint("Horizontal", 3))
sketch7.addConstraint(Sketcher.Constraint("DistanceX", 1, 1, 1, 2, 12.7))
sketch7.addConstraint(Sketcher.Constraint("DistanceY", 0, 2, 0, 1, 19.05))
sketch7.addConstraint(Sketcher.Constraint("DistanceX", -1, 1, 0, 2, 44.45))
sketch7.addConstraint(Sketcher.Constraint("DistanceY", 0, 2, -1, 1, 9.525))
pad6 = doc.addObject("PartDesign::Pad", "Pad005")
body.addObject(pad6)
pad6.Profile = sketch7
pad6.Length = 12.7

# Sketch on XZ plane
sketch8 = doc.addObject("Sketcher::SketchObject", "Sketch007")
body.addObject(sketch8)
sketch8.AttachmentSupport = (doc.XZ_Plane, [""])
sketch8.MapMode = "FlatFace"
sketch8.AttachmentOffset = App.Placement(App.Vector(0, 0, -9.525), App.Rotation())
sketch8.addGeometry(Part.Circle(App.Vector(50.8, 38.83125, 0), App.Vector(0, 0, 1), 3.96875), False)
sketch8.addConstraint(Sketcher.Constraint("Diameter", 0, 7.9375))
sketch8.addConstraint(Sketcher.Constraint("DistanceX", -1, 1, 0, 3, 50.8))
sketch8.addConstraint(Sketcher.Constraint("DistanceY", -1, 1, 0, 3, 38.83125))
pocket2 = doc.addObject("PartDesign::Pocket", "Pocket001")
body.addObject(pocket2)
pocket2.Profile = sketch8
pocket2.Length = 40
pocket2.Reversed = True
doc.recompute()

mirrored2 = doc.addObject("PartDesign::Mirrored", "Mirrored001")
body.addObject(mirrored2)
mirrored2.Originals = [pad6, pocket2]
mirrored2.MirrorPlane = (doc.YZ_Plane, [""])
body.Tip = mirrored2
doc.recompute()

fillet = doc.addObject("PartDesign::Fillet", "Fillet")
body.addObject(fillet)
fillet.Base = (mirrored2, edges_at(mirrored2, [
    (57.15, 0, 45.181),
    (44.45, 0, 32.481),
    (44.45, 0, 45.181),
    (57.15, 0, 32.481),
    (-57.15, 0, 32.481),
    (-44.45, 0, 45.181),
    (-57.15, 0, 45.181),
    (-44.45, 0, 32.481),
]))
fillet.Radius = 2
body2 = doc.addObject("PartDesign::Body", "Body001")

# Sketch on YZ plane
sketch9 = doc.addObject("Sketcher::SketchObject", "Sketch008")
body2.addObject(sketch9)
sketch9.AttachmentSupport = (doc.getObject("YZ_Plane001"), [""])
sketch9.MapMode = "FlatFace"
sketch9.AttachmentOffset = App.Placement(App.Vector(0, 0, 46), App.Rotation())
sketch9.addGeometry(Part.Circle(App.Vector(0, 0, 0), App.Vector(0, 0, 1), 23), False)
sketch9.addGeometry(Part.Circle(App.Vector(-18.5125, 0, 0), App.Vector(0, 0, 1), 3.175), False)
sketch9.addGeometry(Part.Circle(App.Vector(0, 18.5125, 0), App.Vector(0, 0, 1), 3.175), False)
sketch9.addGeometry(Part.Circle(App.Vector(0, 0, 0), App.Vector(0, 0, 1), 3.175), False)
sketch9.addGeometry(Part.Circle(App.Vector(0, -18.5125, 0), App.Vector(0, 0, 1), 3.175), False)
sketch9.addGeometry(Part.Circle(App.Vector(18.5125, 0, 0), App.Vector(0, 0, 1), 3.175), False)
sketch9.addConstraint(Sketcher.Constraint("Coincident", 0, 3, -1, 1))
sketch9.addConstraint(Sketcher.Constraint("Coincident", 3, 3, -1, 1))
sketch9.addConstraint(Sketcher.Constraint("Equal", 1, 2))
sketch9.addConstraint(Sketcher.Constraint("Equal", 2, 3))
sketch9.addConstraint(Sketcher.Constraint("Equal", 3, 4))
sketch9.addConstraint(Sketcher.Constraint("Equal", 4, 5))
sketch9.addConstraint(Sketcher.Constraint("Symmetric", 2, 3, 4, 3, -1, 1))
sketch9.addConstraint(Sketcher.Constraint("Symmetric", 1, 3, 5, 3, -1, 1))
sketch9.addConstraint(Sketcher.Constraint("PointOnObject", 1, 3, -1))
sketch9.addConstraint(Sketcher.Constraint("PointOnObject", 2, 3, -2))
sketch9.addConstraint(Sketcher.Constraint("Diameter", 0, 46.0))
sketch9.addConstraint(Sketcher.Constraint("Diameter", 1, 6.35))
sketch9.addConstraint(Sketcher.Constraint("DistanceY", 4, 3, 2, 3, 37.025))
sketch9.addConstraint(Sketcher.Constraint("DistanceX", 1, 3, 5, 3, 37.025))
pad7 = doc.addObject("PartDesign::Pad", "Pad006")
body2.addObject(pad7)
pad7.Profile = sketch9
pad7.Length = 4
body3 = doc.addObject("PartDesign::Body", "Body002")

# Sketch on YZ plane
sketch10 = doc.addObject("Sketcher::SketchObject", "Sketch009")
body3.addObject(sketch10)
sketch10.AttachmentSupport = (doc.getObject("YZ_Plane002"), [""])
sketch10.MapMode = "FlatFace"
sketch10.AttachmentOffset = App.Placement(App.Vector(0, 0, 52), App.Rotation())
sketch10.addGeometry(Part.Circle(App.Vector(0, 0, 0), App.Vector(0, 0, 1), 20.1), False)
sketch10.addGeometry(Part.Circle(App.Vector(0, 0, 0), App.Vector(0, 0, 1), 3.175), False)
sketch10.addConstraint(Sketcher.Constraint("Coincident", 0, 3, -1, 1))
sketch10.addConstraint(Sketcher.Constraint("Coincident", 1, 3, -1, 1))
sketch10.addConstraint(Sketcher.Constraint("Diameter", 0, 40.2))
sketch10.addConstraint(Sketcher.Constraint("Diameter", 1, 6.35))
pad8 = doc.addObject("PartDesign::Pad", "Pad007")
body3.addObject(pad8)
pad8.Profile = sketch10
pad8.Length = 2
body4 = doc.addObject("PartDesign::Body", "Body003")

# Sketch on YZ plane
sketch11 = doc.addObject("Sketcher::SketchObject", "Sketch010")
body4.addObject(sketch11)
sketch11.AttachmentSupport = (doc.getObject("YZ_Plane003"), [""])
sketch11.MapMode = "FlatFace"
sketch11.addGeometry(Part.Circle(App.Vector(0, 0, 0), App.Vector(0, 0, 1), 3), False)
sketch11.addConstraint(Sketcher.Constraint("Coincident", 0, 3, -1, 1))
sketch11.addConstraint(Sketcher.Constraint("Diameter", 0, 6.0))
pad9 = doc.addObject("PartDesign::Pad", "Pad008")
body4.addObject(pad9)
pad9.Profile = sketch11
pad9.Length = 127
pad9.Midplane = True
body5 = doc.addObject("PartDesign::Body", "Body004")

# Sketch on YZ plane
sketch12 = doc.addObject("Sketcher::SketchObject", "Sketch011")
body5.addObject(sketch12)
sketch12.AttachmentSupport = (doc.getObject("YZ_Plane004"), [""])
sketch12.MapMode = "FlatFace"
sketch12.addGeometry(Part.Circle(App.Vector(18.5125, 0, 0), App.Vector(0, 0, 1), 1.5875), False)
sketch12.addConstraint(Sketcher.Constraint("PointOnObject", 0, 3, -1))
sketch12.addConstraint(Sketcher.Constraint("Diameter", 0, 3.175))
sketch12.addConstraint(Sketcher.Constraint("DistanceX", -1, 1, 0, 3, 18.5125))
pad10 = doc.addObject("PartDesign::Pad", "Pad009")
body5.addObject(pad10)
pad10.Profile = sketch12
pad10.Length = 101.6
pad10.Midplane = True
body6 = doc.addObject("PartDesign::Body", "Body005")

# Sketch on YZ plane
sketch13 = doc.addObject("Sketcher::SketchObject", "Sketch012")
body6.addObject(sketch13)
sketch13.AttachmentSupport = (doc.getObject("YZ_Plane005"), [""])
sketch13.MapMode = "FlatFace"
sketch13.addGeometry(Part.Circle(App.Vector(0, -18.5125, 0), App.Vector(0, 0, 1), 1.5875), False)
sketch13.addConstraint(Sketcher.Constraint("PointOnObject", 0, 3, -2))
sketch13.addConstraint(Sketcher.Constraint("Diameter", 0, 3.175))
sketch13.addConstraint(Sketcher.Constraint("DistanceY", 0, 3, -1, 1, 18.5125))
pad11 = doc.addObject("PartDesign::Pad", "Pad010")
body6.addObject(pad11)
pad11.Profile = sketch13
pad11.Length = 101.6
pad11.Midplane = True
body7 = doc.addObject("PartDesign::Body", "Body006")

# Sketch on YZ plane
sketch14 = doc.addObject("Sketcher::SketchObject", "Sketch013")
body7.addObject(sketch14)
sketch14.AttachmentSupport = (doc.getObject("YZ_Plane006"), [""])
sketch14.MapMode = "FlatFace"
sketch14.addGeometry(Part.Circle(App.Vector(-18.5125, 0, 0), App.Vector(0, 0, 1), 1.5875), False)
sketch14.addConstraint(Sketcher.Constraint("PointOnObject", 0, 3, -1))
sketch14.addConstraint(Sketcher.Constraint("Diameter", 0, 3.175))
sketch14.addConstraint(Sketcher.Constraint("DistanceX", 0, 3, -1, 1, 18.5125))
pad12 = doc.addObject("PartDesign::Pad", "Pad011")
body7.addObject(pad12)
pad12.Profile = sketch14
pad12.Length = 101.6
pad12.Midplane = True
body8 = doc.addObject("PartDesign::Body", "Body007")

# Sketch on YZ plane
sketch15 = doc.addObject("Sketcher::SketchObject", "Sketch014")
body8.addObject(sketch15)
sketch15.AttachmentSupport = (doc.getObject("YZ_Plane007"), [""])
sketch15.MapMode = "FlatFace"
sketch15.addGeometry(Part.Circle(App.Vector(0, 18.5125, 0), App.Vector(0, 0, 1), 1.5875), False)
sketch15.addConstraint(Sketcher.Constraint("PointOnObject", 0, 3, -2))
sketch15.addConstraint(Sketcher.Constraint("Diameter", 0, 3.175))
sketch15.addConstraint(Sketcher.Constraint("DistanceY", -1, 1, 0, 3, 18.5125))
pad13 = doc.addObject("PartDesign::Pad", "Pad012")
body8.addObject(pad13)
pad13.Profile = sketch15
pad13.Length = 101.6
pad13.Midplane = True

doc.recompute()
